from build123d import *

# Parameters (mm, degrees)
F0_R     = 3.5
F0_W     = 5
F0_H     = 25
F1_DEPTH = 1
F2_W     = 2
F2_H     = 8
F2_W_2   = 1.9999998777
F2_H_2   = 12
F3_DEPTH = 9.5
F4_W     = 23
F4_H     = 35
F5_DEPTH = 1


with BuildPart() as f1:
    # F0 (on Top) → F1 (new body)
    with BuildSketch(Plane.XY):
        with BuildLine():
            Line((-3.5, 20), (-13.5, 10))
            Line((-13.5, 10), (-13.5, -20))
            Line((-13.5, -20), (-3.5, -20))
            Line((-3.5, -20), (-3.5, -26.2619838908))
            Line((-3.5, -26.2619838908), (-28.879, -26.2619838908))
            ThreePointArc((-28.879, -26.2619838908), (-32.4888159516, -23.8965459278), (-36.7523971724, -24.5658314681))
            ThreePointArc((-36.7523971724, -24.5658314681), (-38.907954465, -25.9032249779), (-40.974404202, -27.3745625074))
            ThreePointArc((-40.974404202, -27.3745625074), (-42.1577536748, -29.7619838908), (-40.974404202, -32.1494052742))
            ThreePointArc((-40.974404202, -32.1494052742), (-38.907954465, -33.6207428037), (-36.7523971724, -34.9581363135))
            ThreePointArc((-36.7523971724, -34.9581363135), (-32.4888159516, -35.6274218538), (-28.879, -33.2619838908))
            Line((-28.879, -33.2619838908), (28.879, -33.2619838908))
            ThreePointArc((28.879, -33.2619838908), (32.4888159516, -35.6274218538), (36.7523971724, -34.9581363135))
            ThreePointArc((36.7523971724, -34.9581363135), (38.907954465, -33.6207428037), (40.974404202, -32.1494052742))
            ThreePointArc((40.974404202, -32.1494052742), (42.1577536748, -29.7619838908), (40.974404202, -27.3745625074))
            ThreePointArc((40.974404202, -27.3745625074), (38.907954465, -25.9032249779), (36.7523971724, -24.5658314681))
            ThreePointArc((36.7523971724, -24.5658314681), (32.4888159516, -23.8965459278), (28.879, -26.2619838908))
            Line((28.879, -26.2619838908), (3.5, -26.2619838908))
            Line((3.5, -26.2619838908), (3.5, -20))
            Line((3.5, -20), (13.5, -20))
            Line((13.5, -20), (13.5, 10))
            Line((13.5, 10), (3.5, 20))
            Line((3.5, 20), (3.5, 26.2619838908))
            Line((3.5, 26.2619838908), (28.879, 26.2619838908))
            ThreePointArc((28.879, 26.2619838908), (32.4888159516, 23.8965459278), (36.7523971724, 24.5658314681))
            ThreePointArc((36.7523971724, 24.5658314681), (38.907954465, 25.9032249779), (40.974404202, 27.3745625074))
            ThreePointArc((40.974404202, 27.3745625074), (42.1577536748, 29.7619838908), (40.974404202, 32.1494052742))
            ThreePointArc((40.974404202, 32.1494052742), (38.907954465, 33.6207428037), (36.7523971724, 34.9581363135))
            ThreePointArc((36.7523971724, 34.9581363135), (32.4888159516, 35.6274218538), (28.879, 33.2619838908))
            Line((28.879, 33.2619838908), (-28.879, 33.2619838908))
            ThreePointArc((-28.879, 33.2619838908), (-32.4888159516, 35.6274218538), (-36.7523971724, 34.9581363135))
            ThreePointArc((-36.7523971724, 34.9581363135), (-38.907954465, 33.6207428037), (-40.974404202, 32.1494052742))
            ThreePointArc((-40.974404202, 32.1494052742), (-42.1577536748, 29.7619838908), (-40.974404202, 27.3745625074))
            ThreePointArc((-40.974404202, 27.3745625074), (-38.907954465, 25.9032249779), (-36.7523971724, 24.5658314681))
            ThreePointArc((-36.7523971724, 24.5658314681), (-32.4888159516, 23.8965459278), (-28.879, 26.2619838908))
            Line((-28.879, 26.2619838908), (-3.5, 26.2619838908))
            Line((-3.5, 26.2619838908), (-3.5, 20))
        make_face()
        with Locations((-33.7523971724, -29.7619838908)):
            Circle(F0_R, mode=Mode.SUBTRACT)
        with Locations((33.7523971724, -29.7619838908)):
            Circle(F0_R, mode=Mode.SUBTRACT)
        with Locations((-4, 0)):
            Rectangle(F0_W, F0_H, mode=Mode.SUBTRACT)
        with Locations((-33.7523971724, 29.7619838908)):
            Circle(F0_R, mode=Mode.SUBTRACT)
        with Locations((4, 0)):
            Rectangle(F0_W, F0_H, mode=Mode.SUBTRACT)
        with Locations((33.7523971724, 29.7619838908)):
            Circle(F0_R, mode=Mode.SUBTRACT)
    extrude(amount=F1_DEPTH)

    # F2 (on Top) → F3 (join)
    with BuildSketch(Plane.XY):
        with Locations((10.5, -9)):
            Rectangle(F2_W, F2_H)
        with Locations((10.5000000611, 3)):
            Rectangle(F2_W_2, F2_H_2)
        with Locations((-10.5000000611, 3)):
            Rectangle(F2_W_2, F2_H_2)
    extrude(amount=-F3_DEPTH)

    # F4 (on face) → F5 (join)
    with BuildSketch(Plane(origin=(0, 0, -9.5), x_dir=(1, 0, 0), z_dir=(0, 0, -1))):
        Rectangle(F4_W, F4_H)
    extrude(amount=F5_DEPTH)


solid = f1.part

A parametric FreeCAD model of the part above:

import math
import FreeCAD as App
import Part
import Sketcher
from FreeCAD import Vector


def add_polygon(sketch, points):
    """Adds a closed chain of lines whose ends are joined by coincident constraints."""
    first, n = sketch.GeometryCount, len(points)
    for a, b in zip(points, points[1:] + points[:1]):
        sketch.addGeometry(Part.LineSegment(App.Vector(*a, 0), App.Vector(*b, 0)), False)
    for i in range(n):
        sketch.addConstraint(Sketcher.Constraint("Coincident", first + i, 2, first + (i + 1) % n, 1))

doc = App.newDocument("Part")
body = doc.addObject("PartDesign::Body", "Body")

sketch1 = doc.addObject("Sketcher::SketchObject", "Sketch")
body.addObject(sketch1)
sketch1.AttachmentSupport = (doc.XY_Plane, [""])
sketch1.MapMode = "FlatFace"
sketch1.addGeometry(Part.LineSegment(Vector(-3.5, 20, 0), Vector(-13.5, 10, 0)), False)
sketch1.addGeometry(Part.LineSegment(Vector(-13.5, 10, 0), Vector(-13.5, -20, 0)), False)
sketch1.addGeometry(Part.LineSegment(Vector(-13.5, -20, 0), Vector(-3.5, -20, 0)), False)
sketch1.addGeometry(Part.LineSegment(Vector(-3.5, -20, 0), Vector(-3.5, -26.3, 0)), False)
sketch1.addGeometry(Part.LineSegment(Vector(-3.5, -26.3, 0), Vector(-28.9, -26.3, 0)), False)
sketch1.addGeometry(Part.ArcOfCircle(Part.Circle(Vector(-33.8, -29.8, 0), Vector(0, 0, 1), 6), math.radians(36), math.radians(120)), False)
sketch1.addGeometry(Part.ArcOfCircle(Part.Circle(Vector(-16.8, -59.2, 0), Vector(0, 0, 1), 40), math.radians(120), math.radians(127.27)), False)
sketch1.addGeometry(Part.ArcOfCircle(Part.Circle(Vector(-39.2, -29.8, 0), Vector(0, 0, 1), 3), math.radians(127), math.radians(233)), False)
sketch1.addGeometry(Part.ArcOfCircle(Part.Circle(Vector(-16.8, -0.3, 0), Vector(0, 0, 1), 40), math.radians(-127.27), math.radians(-120)), False)
sketch1.addGeometry(Part.ArcOfCircle(Part.Circle(Vector(-33.8, -29.8, 0), Vector(0, 0, 1), 6), math.radians(-120), math.radians(-36)), False)
sketch1.addGeometry(Part.LineSegment(Vector(-28.9, -33.3, 0), Vector(28.9, -33.3, 0)), False)
sketch1.addGeometry(Part.ArcOfCircle(Part.Circle(Vector(33.8, -29.8, 0), Vector(0, 0, 1), 6), math.radians(-144), math.radians(-60)), False)
sketch1.addGeometry(Part.ArcOfCircle(Part.Circle(Vector(16.8, -0.3, 0), Vector(0, 0, 1), 40), math.radians(-60), math.radians(-52.73)), False)
sketch1.addGeometry(Part.ArcOfCircle(Part.Circle(Vector(39.2, -29.8, 0), Vector(0, 0, 1), 3), math.radians(-53), math.radians(53)), False)
sketch1.addGeometry(Part.ArcOfCircle(Part.Circle(Vector(16.8, -59.2, 0), Vector(0, 0, 1), 40), math.radians(52.73), math.radians(60)), False)
sketch1.addGeometry(Part.ArcOfCircle(Part.Circle(Vector(33.8, -29.8, 0), Vector(0, 0, 1), 6), math.radians(60), math.radians(144)), False)
sketch1.addGeometry(Part.LineSegment(Vector(28.9, -26.3, 0), Vector(3.5, -26.3, 0)), False)
sketch1.addGeometry(Part.LineSegment(Vector(3.5, -26.3, 0), Vector(3.5, -20, 0)), False)
sketch1.addGeometry(Part.LineSegment(Vector(3.5, -20, 0), Vector(13.5, -20, 0)), False)
sketch1.addGeometry(Part.LineSegment(Vector(13.5, -20, 0), Vector(13.5, 10, 0)), False)
sketch1.addGeometry(Part.LineSegment(Vector(13.5, 10, 0), Vector(3.5, 20, 0)), False)
sketch1.addGeometry(Part.LineSegment(Vector(3.5, 20, 0), Vector(3.5, 26.3, 0)), False)
sketch1.addGeometry(Part.LineSegment(Vector(3.5, 26.3, 0), Vector(28.9, 26.3, 0)), False)
sketch1.addGeometry(Part.ArcOfCircle(Part.Circle(Vector(33.8, 29.8, 0), Vector(0, 0, 1), 6), math.radians(-144), math.radians(-60)), False)
sketch1.addGeometry(Part.ArcOfCircle(Part.Circle(Vector(16.8, 59.2, 0), Vector(0, 0, 1), 40), math.radians(-60), math.radians(-52.73)), False)
sketch1.addGeometry(Part.ArcOfCircle(Part.Circle(Vector(39.2, 29.8, 0), Vector(0, 0, 1), 3), math.radians(-53), math.radians(53)), False)
sketch1.addGeometry(Part.ArcOfCircle(Part.Circle(Vector(16.8, 0.3, 0), Vector(0, 0, 1), 40), math.radians(52.73), math.radians(60)), False)
sketch1.addGeometry(Part.ArcOfCircle(Part.Circle(Vector(33.8, 29.8, 0), Vector(0, 0, 1), 6), math.radians(60), math.radians(144)), False)
sketch1.addGeometry(Part.LineSegment(Vector(28.9, 33.3, 0), Vector(-28.9, 33.3, 0)), False)
sketch1.addGeometry(Part.ArcOfCircle(Part.Circle(Vector(-33.8, 29.8, 0), Vector(0, 0, 1), 6), math.radians(36), math.radians(120)), False)
sketch1.addGeometry(Part.ArcOfCircle(Part.Circle(Vector(-16.8, 0.3, 0), Vector(0, 0, 1), 40), math.radians(120), math.radians(127.27)), False)
sketch1.addGeometry(Part.ArcOfCircle(Part.Circle(Vector(-39.2, 29.8, 0), Vector(0, 0, 1), 3), math.radians(127), math.radians(233)), False)
sketch1.addGeometry(Part.ArcOfCircle(Part.Circle(Vector(-16.8, 59.2, 0), Vector(0, 0, 1), 40), math.radians(-127.27), math.radians(-120)), False)
sketch1.addGeometry(Part.ArcOfCircle(Part.Circle(Vector(-33.8, 29.8, 0), Vector(0, 0, 1), 6), math.radians(-120), math.radians(-36)), False)
sketch1.addGeometry(Part.LineSegment(Vector(-28.9, 26.3, 0), Vector(-3.5, 26.3, 0)), False)
sketch1.addGeometry(Part.LineSegment(Vector(-3.5, 26.3, 0), Vector(-3.5, 20, 0)), False)
sketch1.addGeometry(Part.Circle(Vector(-33.8, -29.8, 0), Vector(0, 0, 1), 3.5), False)
sketch1.addGeometry(Part.Circle(Vector(33.8, -29.8, 0), Vector(0, 0, 1), 3.5), False)
add_polygon(sketch1, [(-1.5, -12.5), (-6.5, -12.5), (-6.5, 12.5), (-1.5, 12.5)])
sketch1.addGeometry(Part.Circle(Vector(-33.8, 29.8, 0), Vector(0, 0, 1), 3.5), False)
add_polygon(sketch1, [(6.5, -12.5), (1.5, -12.5), (1.5, 12.5), (6.5, 12.5)])
sketch1.addGeometry(Part.Circle(Vector(33.8, 29.8, 0), Vector(0, 0, 1), 3.5), False)
sketch1.addConstraint(Sketcher.Constraint("Coincident", 0, 2, 1, 1))
sketch1.addConstraint(Sketcher.Constraint("Coincident", 1, 2, 2, 1))
sketch1.addConstraint(Sketcher.Constraint("Coincident", 2, 2, 3, 1))
sketch1.addConstraint(Sketcher.Constraint("Coincident", 3, 2, 4, 1))
sketch1.addConstraint(Sketcher.Constraint("Coincident", 4, 2, 5, 1))
sketch1.addConstraint(Sketcher.Constraint("Tangent", 5, 2, 6, 1))
sketch1.addConstraint(Sketcher.Constraint("Tangent", 6, 2, 7, 1))
sketch1.addConstraint(Sketcher.Constraint("Tangent", 7, 2, 8, 1))
sketch1.addConstraint(Sketcher.Constraint("Tangent", 8, 2, 9, 1))
sketch1.addConstraint(Sketcher.Constraint("Coincident", 9, 2, 10, 1))
sketch1.addConstraint(Sketcher.Constraint("Coincident", 10, 2, 11, 1))
sketch1.addConstraint(Sketcher.Constraint("Tangent", 11, 2, 12, 1))
sketch1.addConstraint(Sketcher.Constraint("Tangent", 12, 2, 13, 1))
sketch1.addConstraint(Sketcher.Constraint("Tangent", 13, 2, 14, 1))
sketch1.addConstraint(Sketcher.Constraint("Tangent", 14, 2, 15, 1))
sketch1.addConstraint(Sketcher.Constraint("Coincident", 15, 2, 16, 1))
sketch1.addConstraint(Sketcher.Constraint("Coincident", 16, 2, 17, 1))
sketch1.addConstraint(Sketcher.Constraint("Coincident", 17, 2, 18, 1))
sketch1.addConstraint(Sketcher.Constraint("Coincident", 18, 2, 19, 1))
sketch1.addConstraint(Sketcher.Constraint("Coincident", 19, 2, 20, 1))
sketch1.addConstraint(Sketcher.Constraint("Coincident", 20, 2, 21, 1))
sketch1.addConstraint(Sketcher.Constraint("Coincident", 21, 2, 22, 1))
sketch1.addConstraint(Sketcher.Constraint("Coincident", 22, 2, 23, 1))
sketch1.addConstraint(Sketcher.Constraint("Tangent", 23, 2, 24, 1))
sketch1.addConstraint(Sketcher.Constraint("Tangent", 24, 2, 25, 1))
sketch1.addConstraint(Sketcher.Constraint("Tangent", 25, 2, 26, 1))
sketch1.addConstraint(Sketcher.Constraint("Tangent", 26, 2, 27, 1))
sketch1.addConstraint(Sketcher.Constraint("Coincident", 27, 2, 28, 1))
sketch1.addConstraint(Sketcher.Constraint("Coincident", 28, 2, 29, 1))
sketch1.addConstraint(Sketcher.Constraint("Tangent", 29, 2, 30, 1))
sketch1.addConstraint(Sketcher.Constraint("Tangent", 30, 2, 31, 1))
sketch1.addConstraint(Sketcher.Constraint("Tangent", 31, 2, 32, 1))
sketch1.addConstraint(Sketcher.Constraint("Tangent", 32, 2, 33, 1))
sketch1.addConstraint(Sketcher.Constraint("Coincident", 33, 2, 34, 1))
sketch1.addConstraint(Sketcher.Constraint("Coincident", 34, 2, 35, 1))
sketch1.addConstraint(Sketcher.Constraint("Coincident", 35, 2, 0, 1))
sketch1.addConstraint(Sketcher.Constraint("Vertical", 1))
sketch1.addConstraint(Sketcher.Constraint("Horizontal", 2))
sketch1.addConstraint(Sketcher.Constraint("Vertical", 3))
sketch1.addConstraint(Sketcher.Constraint("Horizontal", 4))
sketch1.addConstraint(Sketcher.Constraint("Horizontal", 10))
sketch1.addConstraint(Sketcher.Constraint("Horizontal", 16))
sketch1.addConstraint(Sketcher.Constraint("Vertical", 17))
sketch1.addConstraint(Sketcher.Constraint("Horizontal", 18))
sketch1.addConstraint(Sketcher.Constraint("Vertical", 19))
sketch1.addConstraint(Sketcher.Constraint("Vertical", 21))
sketch1.addConstraint(Sketcher.Constraint("Horizontal", 22))
sketch1.addConstraint(Sketcher.Constraint("Horizontal", 28))
sketch1.addConstraint(Sketcher.Constraint("Horizontal", 34))
sketch1.addConstraint(Sketcher.Constraint("Vertical", 35))
sketch1.addConstraint(Sketcher.Constraint("Horizontal", 38))
sketch1.addConstraint(Sketcher.Constraint("Vertical", 39))
sketch1.addConstraint(Sketcher.Constraint("Horizontal", 40))
sketch1.addConstraint(Sketcher.Constraint("Vertical", 41))
sketch1.addConstraint(Sketcher.Constraint("Horizontal", 43))
sketch1.addConstraint(Sketcher.Constraint("Vertical", 44))
sketch1.addConstraint(Sketcher.Constraint("Horizontal", 45))
sketch1.addConstraint(Sketcher.Constraint("Vertical", 46))
sketch1.addConstraint(Sketcher.Constraint("Coincident", 9, 3, 5, 3))
sketch1.addConstraint(Sketcher.Constraint("Coincident", 15, 3, 11, 3))
sketch1.addConstraint(Sketcher.Constraint("Coincident", 27, 3, 23, 3))
sketch1.addConstraint(Sketcher.Constraint("Coincident", 33, 3, 29, 3))
sketch1.addConstraint(Sketcher.Constraint("Coincident", 36, 3, 5, 3))
sketch1.addConstraint(Sketcher.Constraint("Coincident", 37, 3, 11, 3))
sketch1.addConstraint(Sketcher.Constraint("Coincident", 42, 3, 29, 3))
sketch1.addConstraint(Sketcher.Constraint("Coincident", 47, 3, 23, 3))
sketch1.addConstraint(Sketcher.Constraint("Equal", 6, 8))
sketch1.addConstraint(Sketcher.Constraint("Equal", 5, 9))
sketch1.addConstraint(Sketcher.Constraint("Equal", 9, 11))
sketch1.addConstraint(Sketcher.Constraint("Equal", 8, 12))
sketch1.addConstraint(Sketcher.Constraint("Equal", 7, 13))
sketch1.addConstraint(Sketcher.Constraint("Equal", 12, 14))
sketch1.addConstraint(Sketcher.Constraint("Equal", 11, 15))
sketch1.addConstraint(Sketcher.Constraint("Equal", 15, 23))
sketch1.addConstraint(Sketcher.Constraint("Equal", 14, 24))
sketch1.addConstraint(Sketcher.Constraint("Equal", 13, 25))
sketch1.addConstraint(Sketcher.Constraint("Equal", 24, 26))
sketch1.addConstraint(Sketcher.Constraint("Equal", 23, 27))
sketch1.addConstraint(Sketcher.Constraint("Equal", 27, 29))
sketch1.addConstraint(Sketcher.Constraint("Equal", 26, 30))
sketch1.addConstraint(Sketcher.Constraint("Equal", 25, 31))
sketch1.addConstraint(Sketcher.Constraint("Equal", 30, 32))
sketch1.addConstraint(Sketcher.Constraint("Equal", 29, 33))
sketch1.addConstraint(Sketcher.Constraint("Equal", 36, 37))
sketch1.addConstraint(Sketcher.Constraint("Equal", 37, 42))
sketch1.addConstraint(Sketcher.Constraint("Equal", 42, 47))
sketch1.addConstraint(Sketcher.Constraint("Symmetric", 5, 3, 23, 3, -1, 1))
sketch1.addConstraint(Sketcher.Constraint("Symmetric", 7, 3, 25, 3, -1, 1))
sketch1.addConstraint(Sketcher.Constraint("Symmetric", 11, 3, 29, 3, -1, 1))
sketch1.addConstraint(Sketcher.Constraint("Symmetric", 13, 3, 31, 3, -1, 1))
sketch1.addConstraint(Sketcher.Constraint("Symmetric", 2, 2, 20, 2, -1, 1))
sketch1.addConstraint(Sketcher.Constraint("Symmetric", 16, 2, 34, 2, -1, 1))
sketch1.addConstraint(Sketcher.Constraint("Symmetric", 40, 2, 43, 2, -1, 1))
sketch1.addConstraint(Sketcher.Constraint("Symmetric", 38, 2, 45, 2, -1, 1))
sketch1.addConstraint(Sketcher.Constraint("Symmetric", 5, 3, 11, 3, -2))
sketch1.addConstraint(Sketcher.Constraint("Symmetric", 7, 3, 13, 3, -2))
sketch1.addConstraint(Sketcher.Constraint("Symmetric", 3, 2, 16, 2, -2))
sketch1.addConstraint(Sketcher.Constraint("Symmetric", 1, 2, 18, 2, -2))
sketch1.addConstraint(Sketcher.Constraint("Perpendicular", 0, 20))
sketch1.addConstraint(Sketcher.Constraint("Horizontal", 5, 3, 7, 3))
sketch1.addConstraint(Sketcher.Constraint("Horizontal", 0, 2, 19, 2))
sketch1.addConstraint(Sketcher.Constraint("Horizontal", 22, 2, 33, 2))
sketch1.addConstraint(Sketcher.Constraint("Horizontal", 20, 2, 35, 2))
sketch1.addConstraint(Sketcher.Constraint("Horizontal", 41, 2, 43, 2))
sketch1.addConstraint(Sketcher.Constraint("Vertical", 4, 2, 9, 2))
sketch1.addConstraint(Sketcher.Constraint("Vertical", 22, 2, 27, 2))
sketch1.addConstraint(Sketcher.Constraint("Diameter", 36, 7.0))
sketch1.addConstraint(Sketcher.Constraint("Radius", 5, 6.0))
sketch1.addConstraint(Sketcher.Constraint("Radius", 6, 40.0))
sketch1.addConstraint(Sketcher.Constraint("Radius", 7, 3.0))
sketch1.addConstraint(Sketcher.Constraint("DistanceX", 2, 1, 2, 2, 10.0))
sketch1.addConstraint(Sketcher.Constraint("DistanceX", 38, 2, 38, 1, 5.0))
sketch1.addConstraint(Sketcher.Constraint("DistanceY", 1, 2, 1, 1, 30.0))
sketch1.addConstraint(Sketcher.Constraint("DistanceY", 39, 1, 39, 2, 25.0))
sketch1.addConstraint(Sketcher.Constraint("DistanceX", 0, 2, -1, 1, 13.5))
sketch1.addConstraint(Sketcher.Constraint("DistanceX", 38, 2, -1, 1, 6.5))
sketch1.addConstraint(Sketcher.Constraint("DistanceX", 4, 2, 4, 1, 25.379))
sketch1.addConstraint(Sketcher.Constraint("DistanceY", 3, 2, 3, 1, 6.261984))
sketch1.addConstraint(Sketcher.Constraint("DistanceY", 8, 3, -1, 1, 0.31712))
sketch1.addConstraint(Sketcher.Constraint("DistanceY", 5, 2, -1, 1, 24.565831))
pad1 = doc.addObject("PartDesign::Pad", "Pad")
body.addObject(pad1)
pad1.Profile = sketch1
pad1.Length = 1

sketch2 = doc.addObject("Sketcher::SketchObject", "Sketch001")
body.addObject(sketch2)
sketch2.AttachmentSupport = (doc.XY_Plane, [""])
sketch2.MapMode = "FlatFace"
add_polygon(sketch2, [(9.5, -5), (9.5, -13), (11.5, -13), (11.5, -5)])
add_polygon(sketch2, [(9.5, 9), (9.5, -3), (11.5, -3), (11.5, 9)])
add_polygon(sketch2, [(-11.5, 9), (-11.5, -3), (-9.5, -3), (-9.5, 9)])
sketch2.addConstraint(Sketcher.Constraint("Vertical", 0))
sketch2.addConstraint(Sketcher.Constraint("Horizontal", 1))
sketch2.addConstraint(Sketcher.Constraint("Vertical", 2))
sketch2.addConstraint(Sketcher.Constraint("Horizontal", 3))
sketch2.addConstraint(Sketcher.Constraint("Vertical", 4))
sketch2.addConstraint(Sketcher.Constraint("Horizontal", 5))
sketch2.addConstraint(Sketcher.Constraint("Vertical", 6))
sketch2.addConstraint(Sketcher.Constraint("Horizontal", 7))
sketch2.addConstraint(Sketcher.Constraint("Vertical", 8))
sketch2.addConstraint(Sketcher.Constraint("Horizontal", 9))
sketch2.addConstraint(Sketcher.Constraint("Vertical", 10))
sketch2.addConstraint(Sketcher.Constraint("Horizontal", 11))
sketch2.addConstraint(Sketcher.Constraint("Symmetric", 5, 2, 8, 2, -2))
sketch2.addConstraint(Sketcher.Constraint("Symmetric", 7, 2, 10, 2, -2))
sketch2.addConstraint(Sketcher.Constraint("Vertical", 3, 2, 4, 2))
sketch2.addConstraint(Sketcher.Constraint("Vertical", 2, 2, 5, 2))
sketch2.addConstraint(Sketcher.Constraint("DistanceX", 1, 1, 1, 2, 2.0))
sketch2.addConstraint(Sketcher.Constraint("DistanceY", 0, 2, 0, 1, 8.0))
sketch2.addConstraint(Sketcher.Constraint("DistanceY", 4, 2, 4, 1, 12.0))
sketch2.addConstraint(Sketcher.Constraint("DistanceY", 0, 2, -1, 1, 13.0))
sketch2.addConstraint(Sketcher.Constraint("DistanceY", 4, 2, -1, 1, 3.0))
sketch2.addConstraint(Sketcher.Constraint("DistanceX", 8, 2, 4, 2, 21.0))
pad2 = doc.addObject("PartDesign::Pad", "Pad001")
body.addObject(pad2)
pad2.Profile = sketch2
pad2.Length = 9.5
pad2.Reversed = True

sketch3 = doc.addObject("Sketcher::SketchObject", "Sketch002")
body.addObject(sketch3)
sketch3.AttachmentSupport = (doc.XY_Plane, [""])
sketch3.MapMode = "FlatFace"
sketch3.AttachmentOffset = App.Placement(Vector(0, 0, -9.5), App.Rotation())
add_polygon(sketch3, [(-12, -18), (-12, 18), (12, 18), (12, -18)])
sketch3.addConstraint(Sketcher.Constraint("Vertical", 0))
sketch3.addConstraint(Sketcher.Constraint("Horizontal", 1))
sketch3.addConstraint(Sketcher.Constraint("Vertical", 2))
sketch3.addConstraint(Sketcher.Constraint("Horizontal", 3))
sketch3.addConstraint(Sketcher.Constraint("Symmetric", 0, 2, 2, 2, -1, 1))
sketch3.addConstraint(Sketcher.Constraint("DistanceX", 1, 1, 1, 2, 23.0))
sketch3.addConstraint(Sketcher.Constraint("DistanceY", 0, 1, 0, 2, 35.0))
pad3 = doc.addObject("PartDesign::Pad", "Pad002")
body.addObject(pad3)
pad3.Profile = sketch3
pad3.Length = 1
pad3.Reversed = True

doc.recompute()
